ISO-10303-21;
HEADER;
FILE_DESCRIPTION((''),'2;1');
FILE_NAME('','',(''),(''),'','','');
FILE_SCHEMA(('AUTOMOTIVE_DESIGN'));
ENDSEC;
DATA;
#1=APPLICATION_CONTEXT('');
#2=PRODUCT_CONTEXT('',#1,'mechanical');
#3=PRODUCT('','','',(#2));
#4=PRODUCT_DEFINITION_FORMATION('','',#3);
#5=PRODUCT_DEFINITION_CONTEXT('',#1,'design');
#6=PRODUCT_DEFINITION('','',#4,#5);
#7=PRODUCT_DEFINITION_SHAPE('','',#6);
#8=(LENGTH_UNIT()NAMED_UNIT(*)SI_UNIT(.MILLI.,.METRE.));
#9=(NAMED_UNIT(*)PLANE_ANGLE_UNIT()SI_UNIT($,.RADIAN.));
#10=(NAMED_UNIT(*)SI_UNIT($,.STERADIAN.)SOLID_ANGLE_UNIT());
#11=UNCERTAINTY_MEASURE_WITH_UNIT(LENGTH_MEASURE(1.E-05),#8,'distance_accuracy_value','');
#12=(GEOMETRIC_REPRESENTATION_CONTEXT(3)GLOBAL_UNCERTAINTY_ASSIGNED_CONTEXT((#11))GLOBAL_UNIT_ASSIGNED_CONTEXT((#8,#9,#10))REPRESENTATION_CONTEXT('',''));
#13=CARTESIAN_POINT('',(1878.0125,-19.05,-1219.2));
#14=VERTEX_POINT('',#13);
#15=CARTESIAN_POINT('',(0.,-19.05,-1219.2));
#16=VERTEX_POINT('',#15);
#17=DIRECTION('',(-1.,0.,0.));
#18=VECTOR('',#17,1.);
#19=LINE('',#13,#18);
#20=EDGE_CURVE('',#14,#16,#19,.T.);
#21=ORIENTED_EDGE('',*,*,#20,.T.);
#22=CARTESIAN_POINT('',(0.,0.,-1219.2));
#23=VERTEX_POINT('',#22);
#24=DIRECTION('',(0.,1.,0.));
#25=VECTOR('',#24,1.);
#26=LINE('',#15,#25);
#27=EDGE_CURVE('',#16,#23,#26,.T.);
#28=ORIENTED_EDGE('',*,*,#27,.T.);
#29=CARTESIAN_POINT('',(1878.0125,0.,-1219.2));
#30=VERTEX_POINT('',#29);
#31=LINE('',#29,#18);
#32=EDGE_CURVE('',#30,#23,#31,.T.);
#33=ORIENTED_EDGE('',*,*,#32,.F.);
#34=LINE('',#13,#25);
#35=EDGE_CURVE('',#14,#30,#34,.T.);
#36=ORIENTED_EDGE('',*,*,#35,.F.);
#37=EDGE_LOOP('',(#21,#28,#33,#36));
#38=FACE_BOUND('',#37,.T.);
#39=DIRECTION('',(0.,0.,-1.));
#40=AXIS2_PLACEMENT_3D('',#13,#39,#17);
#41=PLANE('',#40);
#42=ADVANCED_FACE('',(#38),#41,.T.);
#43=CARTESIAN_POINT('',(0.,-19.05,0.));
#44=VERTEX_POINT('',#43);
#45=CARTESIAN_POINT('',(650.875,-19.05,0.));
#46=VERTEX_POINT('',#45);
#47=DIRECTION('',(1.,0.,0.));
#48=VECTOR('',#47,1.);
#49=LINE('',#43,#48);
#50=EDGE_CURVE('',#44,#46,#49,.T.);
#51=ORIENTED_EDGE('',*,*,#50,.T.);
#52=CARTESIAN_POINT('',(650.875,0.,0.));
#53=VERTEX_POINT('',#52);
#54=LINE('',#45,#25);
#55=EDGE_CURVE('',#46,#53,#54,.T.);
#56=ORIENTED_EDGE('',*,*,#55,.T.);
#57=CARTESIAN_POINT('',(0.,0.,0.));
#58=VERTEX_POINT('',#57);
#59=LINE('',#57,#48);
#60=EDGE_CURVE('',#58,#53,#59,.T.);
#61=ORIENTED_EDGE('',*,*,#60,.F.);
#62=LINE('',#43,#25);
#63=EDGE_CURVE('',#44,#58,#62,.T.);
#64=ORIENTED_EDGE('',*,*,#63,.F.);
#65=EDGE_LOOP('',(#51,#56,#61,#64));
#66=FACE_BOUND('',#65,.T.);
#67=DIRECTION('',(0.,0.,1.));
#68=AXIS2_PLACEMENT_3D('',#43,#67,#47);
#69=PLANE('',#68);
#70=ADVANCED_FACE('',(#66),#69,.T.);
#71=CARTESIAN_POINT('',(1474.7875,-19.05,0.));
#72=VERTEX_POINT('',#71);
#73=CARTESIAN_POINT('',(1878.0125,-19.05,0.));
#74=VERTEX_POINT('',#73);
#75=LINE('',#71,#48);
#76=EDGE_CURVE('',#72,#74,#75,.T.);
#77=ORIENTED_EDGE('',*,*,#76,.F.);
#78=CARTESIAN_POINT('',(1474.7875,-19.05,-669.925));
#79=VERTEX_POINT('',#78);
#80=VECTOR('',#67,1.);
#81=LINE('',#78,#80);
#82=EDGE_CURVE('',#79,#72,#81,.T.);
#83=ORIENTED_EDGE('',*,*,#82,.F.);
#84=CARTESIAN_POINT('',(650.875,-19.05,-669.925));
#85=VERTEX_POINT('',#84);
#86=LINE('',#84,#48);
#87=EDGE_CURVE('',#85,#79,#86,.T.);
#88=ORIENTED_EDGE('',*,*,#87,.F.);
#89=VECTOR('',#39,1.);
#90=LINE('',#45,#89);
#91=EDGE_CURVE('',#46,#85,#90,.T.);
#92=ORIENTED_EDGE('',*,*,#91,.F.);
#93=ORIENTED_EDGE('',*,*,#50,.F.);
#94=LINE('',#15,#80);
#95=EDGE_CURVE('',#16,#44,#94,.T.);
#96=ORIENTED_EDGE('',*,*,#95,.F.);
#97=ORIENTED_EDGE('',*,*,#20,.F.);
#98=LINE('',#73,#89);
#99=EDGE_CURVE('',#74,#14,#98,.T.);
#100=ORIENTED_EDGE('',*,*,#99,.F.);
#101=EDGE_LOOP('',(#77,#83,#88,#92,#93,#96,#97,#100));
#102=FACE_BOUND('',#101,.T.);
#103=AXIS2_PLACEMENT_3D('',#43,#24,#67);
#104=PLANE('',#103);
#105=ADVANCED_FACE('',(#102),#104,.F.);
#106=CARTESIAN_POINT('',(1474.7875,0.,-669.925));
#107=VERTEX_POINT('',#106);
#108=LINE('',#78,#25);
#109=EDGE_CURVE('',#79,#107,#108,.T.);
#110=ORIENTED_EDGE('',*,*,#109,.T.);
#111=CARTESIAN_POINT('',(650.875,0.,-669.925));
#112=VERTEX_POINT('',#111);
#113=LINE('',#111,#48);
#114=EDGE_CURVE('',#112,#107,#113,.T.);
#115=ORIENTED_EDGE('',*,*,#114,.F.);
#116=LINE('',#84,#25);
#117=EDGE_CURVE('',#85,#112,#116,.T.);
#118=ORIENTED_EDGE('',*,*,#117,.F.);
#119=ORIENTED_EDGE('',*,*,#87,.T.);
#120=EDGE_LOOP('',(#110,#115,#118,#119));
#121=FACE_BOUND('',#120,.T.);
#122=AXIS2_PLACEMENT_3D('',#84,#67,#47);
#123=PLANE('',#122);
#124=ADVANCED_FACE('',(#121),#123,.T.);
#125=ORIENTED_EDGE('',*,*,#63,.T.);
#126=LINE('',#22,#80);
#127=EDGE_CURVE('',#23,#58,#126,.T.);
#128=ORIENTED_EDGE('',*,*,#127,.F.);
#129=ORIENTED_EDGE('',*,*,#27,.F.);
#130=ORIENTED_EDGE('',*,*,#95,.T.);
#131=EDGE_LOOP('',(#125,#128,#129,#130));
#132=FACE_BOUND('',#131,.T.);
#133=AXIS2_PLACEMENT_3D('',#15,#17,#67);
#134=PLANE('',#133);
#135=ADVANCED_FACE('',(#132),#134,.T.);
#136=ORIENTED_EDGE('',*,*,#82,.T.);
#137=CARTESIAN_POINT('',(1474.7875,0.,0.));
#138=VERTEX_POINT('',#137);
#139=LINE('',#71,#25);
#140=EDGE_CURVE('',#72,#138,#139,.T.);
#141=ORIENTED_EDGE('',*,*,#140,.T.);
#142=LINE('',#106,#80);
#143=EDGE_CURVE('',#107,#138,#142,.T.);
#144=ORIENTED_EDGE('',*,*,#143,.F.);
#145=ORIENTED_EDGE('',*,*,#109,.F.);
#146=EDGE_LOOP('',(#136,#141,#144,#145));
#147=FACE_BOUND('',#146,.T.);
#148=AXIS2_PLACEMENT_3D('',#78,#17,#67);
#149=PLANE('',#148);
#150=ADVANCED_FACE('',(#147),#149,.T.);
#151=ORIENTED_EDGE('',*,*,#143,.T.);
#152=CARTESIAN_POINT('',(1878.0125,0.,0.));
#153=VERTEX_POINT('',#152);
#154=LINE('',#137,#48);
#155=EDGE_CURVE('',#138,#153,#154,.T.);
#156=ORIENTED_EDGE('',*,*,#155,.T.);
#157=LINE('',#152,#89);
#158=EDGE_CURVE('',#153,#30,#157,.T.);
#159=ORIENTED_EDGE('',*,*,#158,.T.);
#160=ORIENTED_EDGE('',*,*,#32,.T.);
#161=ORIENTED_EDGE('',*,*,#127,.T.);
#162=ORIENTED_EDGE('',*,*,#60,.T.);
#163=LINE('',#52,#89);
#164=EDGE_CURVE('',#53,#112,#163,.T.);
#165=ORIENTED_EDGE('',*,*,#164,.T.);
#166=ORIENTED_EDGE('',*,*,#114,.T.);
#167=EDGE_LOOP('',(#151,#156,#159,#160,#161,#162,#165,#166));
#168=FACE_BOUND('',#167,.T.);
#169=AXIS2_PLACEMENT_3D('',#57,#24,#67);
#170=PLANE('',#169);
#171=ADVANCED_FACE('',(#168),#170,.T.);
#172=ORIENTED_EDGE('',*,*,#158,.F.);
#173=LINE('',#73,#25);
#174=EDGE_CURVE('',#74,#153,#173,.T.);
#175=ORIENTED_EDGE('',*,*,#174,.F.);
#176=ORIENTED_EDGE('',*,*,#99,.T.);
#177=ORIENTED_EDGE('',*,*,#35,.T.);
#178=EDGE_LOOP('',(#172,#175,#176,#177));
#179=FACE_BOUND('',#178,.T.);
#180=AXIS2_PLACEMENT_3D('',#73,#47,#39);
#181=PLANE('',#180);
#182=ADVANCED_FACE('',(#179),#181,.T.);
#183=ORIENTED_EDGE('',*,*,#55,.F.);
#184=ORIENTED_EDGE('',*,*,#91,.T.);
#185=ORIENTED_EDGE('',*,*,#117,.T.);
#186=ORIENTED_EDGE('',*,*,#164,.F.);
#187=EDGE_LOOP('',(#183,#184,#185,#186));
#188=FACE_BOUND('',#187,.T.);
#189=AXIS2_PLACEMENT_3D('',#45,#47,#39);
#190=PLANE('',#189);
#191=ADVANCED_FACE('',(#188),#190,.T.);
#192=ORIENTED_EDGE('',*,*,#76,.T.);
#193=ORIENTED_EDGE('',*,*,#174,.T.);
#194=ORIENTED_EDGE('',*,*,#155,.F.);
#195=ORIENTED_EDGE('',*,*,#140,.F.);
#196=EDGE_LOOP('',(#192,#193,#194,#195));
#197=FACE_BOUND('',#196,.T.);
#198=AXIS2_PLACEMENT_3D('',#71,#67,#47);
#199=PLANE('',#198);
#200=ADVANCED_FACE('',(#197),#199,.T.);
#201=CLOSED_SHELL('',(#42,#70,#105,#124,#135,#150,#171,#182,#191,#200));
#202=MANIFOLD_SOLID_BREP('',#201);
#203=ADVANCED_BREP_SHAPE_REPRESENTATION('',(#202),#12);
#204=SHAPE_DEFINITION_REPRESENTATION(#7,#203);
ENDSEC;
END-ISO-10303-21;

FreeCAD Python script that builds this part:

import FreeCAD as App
import Part
import Sketcher
Q = App.Units.Quantity


def add_polygon(sketch, points):
    """Adds a closed chain of lines whose ends are joined by coincident constraints."""
    first, n = sketch.GeometryCount, len(points)
    for a, b in zip(points, points[1:] + points[:1]):
        sketch.addGeometry(Part.LineSegment(App.Vector(*a, 0), App.Vector(*b, 0)), False)
    for i in range(n):
        sketch.addConstraint(Sketcher.Constraint("Coincident", first + i, 2, first + (i + 1) % n, 1))

doc = App.newDocument("Part")
body = doc.addObject("PartDesign::Body", "Body")

# Sketch on XZ plane
sketch1 = doc.addObject("Sketcher::SketchObject", "Sketch")
body.addObject(sketch1)
sketch1.AttachmentSupport = (doc.XZ_Plane, [""])
sketch1.MapMode = "FlatFace"
add_polygon(sketch1, [(651, 0), (651, -670), (1475, -670), (1475, 0), (1878, 0), (1878, -1219), (0, -1219), (0, 0)])  # lines 0-7
sketch1.addConstraint([
    Sketcher.Constraint("Vertical", 0),
    Sketcher.Constraint("Horizontal", 1),
    Sketcher.Constraint("Vertical", 2),
    Sketcher.Constraint("Horizontal", 3),
    Sketcher.Constraint("Vertical", 4),
    Sketcher.Constraint("Horizontal", 5),
    Sketcher.Constraint("Vertical", 6),
    Sketcher.Constraint("Horizontal", 7),
    Sketcher.Constraint("Coincident", 6, 2, -1, 1),
    Sketcher.Constraint("PointOnObject", 2, 2, -1),
    Sketcher.Constraint("DistanceY", 4, 2, 4, 1, Q("48 in")),
    Sketcher.Constraint("DistanceX", 1, 1, 1, 2, Q("32.4375 in")),
    Sketcher.Constraint("DistanceX", 3, 1, 3, 2, Q("15.875 in")),
    Sketcher.Constraint("DistanceX", 5, 2, 5, 1, Q("73.9375 in")),
    Sketcher.Constraint("DistanceY", 0, 2, 0, 1, Q("26.375 in")),
])
pad1 = doc.addObject("PartDesign::Pad", "Pad")
body.addObject(pad1)
pad1.Profile = sketch1
pad1.Length = Q("0.75 in")

doc.recompute()
